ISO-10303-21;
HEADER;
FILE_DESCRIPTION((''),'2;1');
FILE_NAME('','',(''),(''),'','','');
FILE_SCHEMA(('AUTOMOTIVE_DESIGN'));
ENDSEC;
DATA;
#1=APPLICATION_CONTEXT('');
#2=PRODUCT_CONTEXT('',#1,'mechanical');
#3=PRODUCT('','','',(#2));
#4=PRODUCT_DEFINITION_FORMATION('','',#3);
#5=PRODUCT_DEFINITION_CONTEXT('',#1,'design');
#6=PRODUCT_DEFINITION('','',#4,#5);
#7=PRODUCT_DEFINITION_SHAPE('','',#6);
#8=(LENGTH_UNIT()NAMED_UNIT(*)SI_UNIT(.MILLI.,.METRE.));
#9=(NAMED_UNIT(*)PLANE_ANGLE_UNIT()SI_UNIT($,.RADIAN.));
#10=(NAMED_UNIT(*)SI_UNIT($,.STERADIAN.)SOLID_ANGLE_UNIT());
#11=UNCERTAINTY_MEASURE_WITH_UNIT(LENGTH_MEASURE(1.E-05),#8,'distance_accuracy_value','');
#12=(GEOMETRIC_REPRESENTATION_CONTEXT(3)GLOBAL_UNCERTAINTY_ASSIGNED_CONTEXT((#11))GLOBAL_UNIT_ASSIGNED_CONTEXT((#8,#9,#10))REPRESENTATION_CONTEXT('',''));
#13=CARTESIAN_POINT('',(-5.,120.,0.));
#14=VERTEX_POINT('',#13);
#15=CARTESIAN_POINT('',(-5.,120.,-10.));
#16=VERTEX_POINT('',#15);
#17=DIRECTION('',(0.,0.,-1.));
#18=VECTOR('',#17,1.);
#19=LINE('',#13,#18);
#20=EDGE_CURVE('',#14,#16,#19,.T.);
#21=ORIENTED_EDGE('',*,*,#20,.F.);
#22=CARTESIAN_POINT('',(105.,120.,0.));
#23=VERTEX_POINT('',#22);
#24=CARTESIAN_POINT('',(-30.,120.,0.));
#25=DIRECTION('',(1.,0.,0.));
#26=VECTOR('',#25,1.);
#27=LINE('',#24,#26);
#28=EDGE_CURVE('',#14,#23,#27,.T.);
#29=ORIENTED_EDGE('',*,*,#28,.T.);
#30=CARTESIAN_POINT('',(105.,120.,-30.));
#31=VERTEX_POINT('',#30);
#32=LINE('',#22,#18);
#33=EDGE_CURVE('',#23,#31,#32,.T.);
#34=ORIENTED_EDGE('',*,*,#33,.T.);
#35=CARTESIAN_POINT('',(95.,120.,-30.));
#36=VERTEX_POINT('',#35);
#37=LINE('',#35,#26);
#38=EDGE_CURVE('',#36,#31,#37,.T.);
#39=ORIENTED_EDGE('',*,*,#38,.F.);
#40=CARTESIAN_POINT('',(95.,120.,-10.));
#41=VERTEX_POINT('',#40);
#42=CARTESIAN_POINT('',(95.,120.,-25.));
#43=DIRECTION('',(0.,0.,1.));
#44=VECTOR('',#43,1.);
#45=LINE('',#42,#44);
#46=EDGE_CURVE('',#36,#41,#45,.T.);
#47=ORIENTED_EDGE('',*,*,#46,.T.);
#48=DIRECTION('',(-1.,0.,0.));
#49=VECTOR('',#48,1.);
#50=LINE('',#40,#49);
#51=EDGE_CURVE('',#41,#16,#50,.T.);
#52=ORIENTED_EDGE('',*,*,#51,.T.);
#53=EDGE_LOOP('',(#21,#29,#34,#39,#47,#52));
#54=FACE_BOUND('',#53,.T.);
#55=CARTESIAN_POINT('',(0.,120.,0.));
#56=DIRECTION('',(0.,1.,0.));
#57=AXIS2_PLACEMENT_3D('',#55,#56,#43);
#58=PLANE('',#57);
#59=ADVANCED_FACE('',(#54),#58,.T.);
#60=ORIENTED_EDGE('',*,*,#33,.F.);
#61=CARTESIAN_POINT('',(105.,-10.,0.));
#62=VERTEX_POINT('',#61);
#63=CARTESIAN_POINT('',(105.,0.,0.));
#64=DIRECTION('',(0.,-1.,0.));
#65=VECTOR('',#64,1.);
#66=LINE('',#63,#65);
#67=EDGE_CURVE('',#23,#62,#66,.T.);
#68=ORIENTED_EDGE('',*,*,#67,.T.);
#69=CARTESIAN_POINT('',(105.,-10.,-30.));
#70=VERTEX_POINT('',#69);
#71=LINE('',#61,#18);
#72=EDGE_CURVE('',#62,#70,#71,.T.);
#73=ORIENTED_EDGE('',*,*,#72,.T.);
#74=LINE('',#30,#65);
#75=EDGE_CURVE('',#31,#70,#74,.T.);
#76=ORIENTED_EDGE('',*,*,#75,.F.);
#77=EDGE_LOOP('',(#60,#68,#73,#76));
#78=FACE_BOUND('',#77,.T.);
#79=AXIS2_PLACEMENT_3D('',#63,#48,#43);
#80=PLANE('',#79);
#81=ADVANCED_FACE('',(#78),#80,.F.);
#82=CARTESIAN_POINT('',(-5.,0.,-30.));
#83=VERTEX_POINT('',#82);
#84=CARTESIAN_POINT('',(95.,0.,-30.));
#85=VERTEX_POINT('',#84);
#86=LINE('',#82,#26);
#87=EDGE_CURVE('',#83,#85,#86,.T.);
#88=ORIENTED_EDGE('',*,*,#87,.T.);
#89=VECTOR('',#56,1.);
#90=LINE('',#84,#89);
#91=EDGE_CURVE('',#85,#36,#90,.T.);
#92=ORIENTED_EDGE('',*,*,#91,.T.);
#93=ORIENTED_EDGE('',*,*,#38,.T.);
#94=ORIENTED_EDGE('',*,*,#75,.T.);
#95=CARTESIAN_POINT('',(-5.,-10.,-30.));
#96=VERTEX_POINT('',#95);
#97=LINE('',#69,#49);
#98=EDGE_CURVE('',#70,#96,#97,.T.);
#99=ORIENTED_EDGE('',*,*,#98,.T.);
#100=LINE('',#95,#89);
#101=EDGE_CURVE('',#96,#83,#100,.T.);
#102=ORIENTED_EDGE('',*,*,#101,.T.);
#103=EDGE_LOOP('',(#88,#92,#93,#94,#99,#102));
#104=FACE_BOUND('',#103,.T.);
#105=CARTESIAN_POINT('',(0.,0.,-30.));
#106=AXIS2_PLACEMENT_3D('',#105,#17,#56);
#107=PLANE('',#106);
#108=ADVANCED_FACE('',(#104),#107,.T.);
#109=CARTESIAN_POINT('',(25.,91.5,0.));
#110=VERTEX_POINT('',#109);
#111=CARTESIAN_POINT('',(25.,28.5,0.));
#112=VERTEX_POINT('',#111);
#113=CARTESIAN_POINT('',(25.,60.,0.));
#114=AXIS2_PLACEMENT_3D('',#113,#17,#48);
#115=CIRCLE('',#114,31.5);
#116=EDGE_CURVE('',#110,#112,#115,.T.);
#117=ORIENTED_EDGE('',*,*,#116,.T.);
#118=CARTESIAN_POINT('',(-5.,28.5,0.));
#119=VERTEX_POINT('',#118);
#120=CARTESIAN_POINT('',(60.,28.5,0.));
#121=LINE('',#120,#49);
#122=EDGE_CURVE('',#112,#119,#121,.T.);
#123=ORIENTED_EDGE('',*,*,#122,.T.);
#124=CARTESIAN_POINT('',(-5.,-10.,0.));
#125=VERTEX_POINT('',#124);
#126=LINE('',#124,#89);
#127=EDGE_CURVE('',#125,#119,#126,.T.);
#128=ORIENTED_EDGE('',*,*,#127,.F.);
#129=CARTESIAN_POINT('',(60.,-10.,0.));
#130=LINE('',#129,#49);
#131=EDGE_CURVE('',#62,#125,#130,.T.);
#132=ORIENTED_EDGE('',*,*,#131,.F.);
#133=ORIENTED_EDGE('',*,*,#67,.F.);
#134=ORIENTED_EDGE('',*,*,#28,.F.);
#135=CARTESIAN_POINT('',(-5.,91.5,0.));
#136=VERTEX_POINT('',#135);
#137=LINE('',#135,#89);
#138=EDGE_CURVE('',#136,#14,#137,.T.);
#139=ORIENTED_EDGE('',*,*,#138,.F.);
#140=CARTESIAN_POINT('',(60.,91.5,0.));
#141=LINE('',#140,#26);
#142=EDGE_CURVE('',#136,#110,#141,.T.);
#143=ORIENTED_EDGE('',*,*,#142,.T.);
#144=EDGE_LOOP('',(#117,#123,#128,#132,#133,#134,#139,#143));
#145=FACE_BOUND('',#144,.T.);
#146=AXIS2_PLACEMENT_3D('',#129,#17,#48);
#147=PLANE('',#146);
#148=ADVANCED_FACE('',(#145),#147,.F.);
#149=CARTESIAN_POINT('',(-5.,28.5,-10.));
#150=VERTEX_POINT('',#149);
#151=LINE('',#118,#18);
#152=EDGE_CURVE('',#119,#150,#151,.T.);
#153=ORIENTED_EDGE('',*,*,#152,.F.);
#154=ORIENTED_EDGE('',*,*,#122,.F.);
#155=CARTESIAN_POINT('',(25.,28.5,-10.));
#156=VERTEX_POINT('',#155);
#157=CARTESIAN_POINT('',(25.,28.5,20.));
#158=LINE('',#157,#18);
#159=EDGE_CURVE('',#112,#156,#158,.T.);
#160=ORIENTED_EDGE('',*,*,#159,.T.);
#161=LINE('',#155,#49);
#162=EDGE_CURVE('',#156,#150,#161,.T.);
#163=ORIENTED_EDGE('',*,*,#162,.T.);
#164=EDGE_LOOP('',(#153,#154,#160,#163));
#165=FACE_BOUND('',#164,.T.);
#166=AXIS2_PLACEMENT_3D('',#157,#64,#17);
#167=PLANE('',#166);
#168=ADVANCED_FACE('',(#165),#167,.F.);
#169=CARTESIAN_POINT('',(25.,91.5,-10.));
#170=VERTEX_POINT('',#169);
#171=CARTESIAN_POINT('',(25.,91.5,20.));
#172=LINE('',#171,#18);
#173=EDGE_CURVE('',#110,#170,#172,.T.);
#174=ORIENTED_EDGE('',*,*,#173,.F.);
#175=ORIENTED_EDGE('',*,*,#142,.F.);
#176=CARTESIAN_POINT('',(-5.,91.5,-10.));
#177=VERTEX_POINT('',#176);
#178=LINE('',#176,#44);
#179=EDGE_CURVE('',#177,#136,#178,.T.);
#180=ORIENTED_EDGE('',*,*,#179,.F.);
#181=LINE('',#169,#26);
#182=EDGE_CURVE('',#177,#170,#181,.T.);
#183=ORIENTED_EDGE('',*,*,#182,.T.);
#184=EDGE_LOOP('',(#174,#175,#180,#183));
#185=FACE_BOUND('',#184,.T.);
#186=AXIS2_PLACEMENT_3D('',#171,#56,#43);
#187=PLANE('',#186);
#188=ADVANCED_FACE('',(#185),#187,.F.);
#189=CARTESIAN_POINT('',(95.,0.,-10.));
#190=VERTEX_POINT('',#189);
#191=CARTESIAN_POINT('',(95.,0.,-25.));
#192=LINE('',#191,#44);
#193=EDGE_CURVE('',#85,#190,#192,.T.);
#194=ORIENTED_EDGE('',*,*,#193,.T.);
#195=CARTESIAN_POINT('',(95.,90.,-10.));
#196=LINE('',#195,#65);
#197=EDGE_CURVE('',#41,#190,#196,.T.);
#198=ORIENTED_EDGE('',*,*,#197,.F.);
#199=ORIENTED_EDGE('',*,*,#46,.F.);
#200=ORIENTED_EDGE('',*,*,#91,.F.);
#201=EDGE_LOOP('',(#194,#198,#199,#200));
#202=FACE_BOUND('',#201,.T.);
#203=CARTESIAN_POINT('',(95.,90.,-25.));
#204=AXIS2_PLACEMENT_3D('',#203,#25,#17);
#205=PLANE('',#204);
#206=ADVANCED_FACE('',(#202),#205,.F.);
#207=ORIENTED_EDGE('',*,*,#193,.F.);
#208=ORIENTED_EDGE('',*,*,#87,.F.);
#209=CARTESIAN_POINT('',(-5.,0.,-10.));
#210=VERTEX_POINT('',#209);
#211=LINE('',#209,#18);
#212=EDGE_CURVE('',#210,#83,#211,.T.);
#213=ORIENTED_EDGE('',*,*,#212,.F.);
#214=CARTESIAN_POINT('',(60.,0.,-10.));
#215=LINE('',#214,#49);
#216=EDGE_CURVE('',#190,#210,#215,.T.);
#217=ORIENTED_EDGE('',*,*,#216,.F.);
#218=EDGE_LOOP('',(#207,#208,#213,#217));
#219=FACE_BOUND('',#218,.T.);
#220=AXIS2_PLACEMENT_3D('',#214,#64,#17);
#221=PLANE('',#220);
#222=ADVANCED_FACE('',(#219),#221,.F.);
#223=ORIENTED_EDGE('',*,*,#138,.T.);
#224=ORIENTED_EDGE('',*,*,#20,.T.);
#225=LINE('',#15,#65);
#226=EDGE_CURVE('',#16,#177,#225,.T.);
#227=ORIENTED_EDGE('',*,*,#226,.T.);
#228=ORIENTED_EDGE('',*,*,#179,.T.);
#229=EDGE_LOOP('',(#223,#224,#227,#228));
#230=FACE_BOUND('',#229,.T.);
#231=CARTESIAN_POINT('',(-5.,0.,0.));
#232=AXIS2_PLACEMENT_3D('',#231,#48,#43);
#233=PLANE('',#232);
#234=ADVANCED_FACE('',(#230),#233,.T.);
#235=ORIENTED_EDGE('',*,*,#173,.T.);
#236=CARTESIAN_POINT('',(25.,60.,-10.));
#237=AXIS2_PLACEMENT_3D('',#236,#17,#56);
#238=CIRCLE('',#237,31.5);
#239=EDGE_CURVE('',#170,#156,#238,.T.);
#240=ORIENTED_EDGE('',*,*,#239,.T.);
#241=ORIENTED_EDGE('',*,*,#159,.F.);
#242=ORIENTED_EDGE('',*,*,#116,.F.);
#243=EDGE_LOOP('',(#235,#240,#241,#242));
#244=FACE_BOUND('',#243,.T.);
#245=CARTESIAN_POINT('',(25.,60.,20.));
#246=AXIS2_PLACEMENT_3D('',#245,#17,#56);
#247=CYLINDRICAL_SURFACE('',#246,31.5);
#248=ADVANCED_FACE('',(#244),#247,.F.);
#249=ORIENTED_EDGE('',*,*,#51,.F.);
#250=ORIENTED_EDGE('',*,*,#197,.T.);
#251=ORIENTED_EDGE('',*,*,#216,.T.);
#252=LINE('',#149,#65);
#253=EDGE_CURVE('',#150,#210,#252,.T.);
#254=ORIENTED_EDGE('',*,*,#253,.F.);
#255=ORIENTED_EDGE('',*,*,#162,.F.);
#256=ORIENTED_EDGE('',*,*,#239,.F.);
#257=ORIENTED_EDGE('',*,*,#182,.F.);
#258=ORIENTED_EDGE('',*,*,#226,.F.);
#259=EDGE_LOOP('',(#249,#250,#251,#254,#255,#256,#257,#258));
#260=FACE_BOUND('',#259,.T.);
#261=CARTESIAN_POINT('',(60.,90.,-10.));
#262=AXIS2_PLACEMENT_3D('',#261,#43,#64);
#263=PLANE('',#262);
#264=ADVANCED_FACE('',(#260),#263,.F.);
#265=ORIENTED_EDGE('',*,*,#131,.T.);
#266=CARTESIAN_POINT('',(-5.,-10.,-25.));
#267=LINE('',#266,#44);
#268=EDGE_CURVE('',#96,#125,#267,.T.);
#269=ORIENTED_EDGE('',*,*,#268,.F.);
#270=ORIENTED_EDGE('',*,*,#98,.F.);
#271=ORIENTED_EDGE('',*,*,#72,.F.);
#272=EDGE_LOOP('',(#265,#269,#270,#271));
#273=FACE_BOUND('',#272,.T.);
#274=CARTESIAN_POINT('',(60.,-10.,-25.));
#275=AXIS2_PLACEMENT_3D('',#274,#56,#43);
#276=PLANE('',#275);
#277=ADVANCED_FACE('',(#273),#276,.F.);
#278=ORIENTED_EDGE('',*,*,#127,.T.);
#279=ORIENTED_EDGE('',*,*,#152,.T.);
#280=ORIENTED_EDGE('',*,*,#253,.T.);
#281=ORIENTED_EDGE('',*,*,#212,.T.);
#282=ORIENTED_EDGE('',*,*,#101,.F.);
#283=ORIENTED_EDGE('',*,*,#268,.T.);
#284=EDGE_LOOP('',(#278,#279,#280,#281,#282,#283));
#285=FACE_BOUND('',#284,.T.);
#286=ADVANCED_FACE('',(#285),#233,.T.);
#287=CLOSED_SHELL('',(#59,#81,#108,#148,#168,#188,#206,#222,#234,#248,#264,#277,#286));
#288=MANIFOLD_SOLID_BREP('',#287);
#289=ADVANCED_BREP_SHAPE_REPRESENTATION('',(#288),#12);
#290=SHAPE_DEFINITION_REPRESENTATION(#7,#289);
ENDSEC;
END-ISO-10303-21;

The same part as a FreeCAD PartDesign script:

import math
import FreeCAD as App
import Part
import Sketcher

V = App.Vector
Q = App.Units.Quantity


def add_polygon(sketch, points):
    """Adds a closed chain of lines whose ends are joined by coincident constraints."""
    first, n = sketch.GeometryCount, len(points)
    for a, b in zip(points, points[1:] + points[:1]):
        sketch.addGeometry(Part.LineSegment(App.Vector(*a, 0), App.Vector(*b, 0)), False)
    for i in range(n):
        sketch.addConstraint(Sketcher.Constraint("Coincident", first + i, 2, first + (i + 1) % n, 1))

doc = App.newDocument("Part")
body = doc.addObject("PartDesign::Body", "Body")

# Sketch on YZ plane
sketch1 = doc.addObject("Sketcher::SketchObject", "Sketch")
body.addObject(sketch1)
sketch1.AttachmentSupport = (doc.YZ_Plane, [""])
sketch1.MapMode = "FlatFace"
add_polygon(sketch1, [(90, 0), (-10, 0), (-10, -25), (0, -25), (0, -10), (90, -10)])  # lines 0-5
sketch1.addConstraint(Sketcher.Constraint("Horizontal", 0))
sketch1.addConstraint(Sketcher.Constraint("Vertical", 1))
sketch1.addConstraint(Sketcher.Constraint("Horizontal", 2))
sketch1.addConstraint(Sketcher.Constraint("Vertical", 3))
sketch1.addConstraint(Sketcher.Constraint("Horizontal", 4))
sketch1.addConstraint(Sketcher.Constraint("Vertical", 5))
sketch1.addConstraint(Sketcher.Constraint("PointOnObject", 0, 2, -1))
sketch1.addConstraint(Sketcher.Constraint("PointOnObject", 2, 2, -2))
sketch1.addConstraint(Sketcher.Constraint("Equal", 2, 5))
sketch1.addConstraint(Sketcher.Constraint("DistanceX", 0, 2, 0, 1, Q("100 mm")))
sketch1.addConstraint(Sketcher.Constraint("DistanceX", 2, 1, 2, 2, Q("10 mm")))
sketch1.addConstraint(Sketcher.Constraint("DistanceY", 1, 2, 1, 1, Q("25 mm")))
pad1 = doc.addObject("PartDesign::Pad", "Pad")
body.addObject(pad1)
pad1.Profile = sketch1
pad1.Length = 60

# Sketch on YZ plane
sketch2 = doc.addObject("Sketcher::SketchObject", "Sketch001")
body.addObject(sketch2)
sketch2.AttachmentSupport = (doc.YZ_Plane, [""])
sketch2.MapMode = "FlatFace"
sketch2.AttachmentOffset = App.Placement(V(0, 0, 60), App.Rotation())
add_polygon(sketch2, [(90, 0), (0, 0), (0, -10), (90, -10)])  # lines 0-3
sketch2.addConstraint(Sketcher.Constraint("Horizontal", 0))
sketch2.addConstraint(Sketcher.Constraint("Vertical", 1))
sketch2.addConstraint(Sketcher.Constraint("Horizontal", 2))
sketch2.addConstraint(Sketcher.Constraint("Vertical", 3))
sketch2.addConstraint(Sketcher.Constraint("Coincident", 0, 2, -1, 1))
sketch2.addConstraint(Sketcher.Constraint("DistanceX", 0, 2, 0, 1, Q("90 mm")))
sketch2.addConstraint(Sketcher.Constraint("DistanceY", 1, 2, 1, 1, Q("10 mm")))
pad2 = doc.addObject("PartDesign::Pad", "Pad001")
body.addObject(pad2)
pad2.Profile = sketch2
pad2.Length = 45

# Sketch on YZ plane
sketch3 = doc.addObject("Sketcher::SketchObject", "Sketch002")
body.addObject(sketch3)
sketch3.AttachmentSupport = (doc.YZ_Plane, [""])
sketch3.MapMode = "FlatFace"
sketch3.AttachmentOffset = App.Placement(V(0, 0, 60), App.Rotation())
add_polygon(sketch3, [(0, 0), (-10, 0), (-10, -25), (0, -25)])  # lines 0-3
sketch3.addConstraint(Sketcher.Constraint("Horizontal", 0))
sketch3.addConstraint(Sketcher.Constraint("Vertical", 1))
sketch3.addConstraint(Sketcher.Constraint("Horizontal", 2))
sketch3.addConstraint(Sketcher.Constraint("Vertical", 3))
sketch3.addConstraint(Sketcher.Constraint("Coincident", 3, 2, -1, 1))
sketch3.addConstraint(Sketcher.Constraint("DistanceX", 0, 2, 0, 1, Q("10 mm")))
sketch3.addConstraint(Sketcher.Constraint("DistanceY", 1, 2, 1, 1, Q("25 mm")))
pad3 = doc.addObject("PartDesign::Pad", "Pad002")
body.addObject(pad3)
pad3.Profile = sketch3
pad3.Length = 45

# Sketch on XZ plane
sketch4 = doc.addObject("Sketcher::SketchObject", "Sketch003")
body.addObject(sketch4)
sketch4.AttachmentSupport = (doc.XZ_Plane, [""])
sketch4.MapMode = "FlatFace"
add_polygon(sketch4, [(95, -25), (95, -10), (105, -10), (105, -25)])  # lines 0-3
sketch4.addConstraint(Sketcher.Constraint("Vertical", 0))
sketch4.addConstraint(Sketcher.Constraint("Horizontal", 1))
sketch4.addConstraint(Sketcher.Constraint("Vertical", 2))
sketch4.addConstraint(Sketcher.Constraint("Horizontal", 3))
sketch4.addConstraint(Sketcher.Constraint("DistanceX", 1, 1, 1, 2, Q("10 mm")))
sketch4.addConstraint(Sketcher.Constraint("DistanceY", 0, 1, 0, 2, Q("15 mm")))
sketch4.addConstraint(Sketcher.Constraint("DistanceX", -1, 1, 0, 2, Q("95 mm")))
sketch4.addConstraint(Sketcher.Constraint("DistanceY", 0, 2, -1, 1, Q("10 mm")))
pad4 = doc.addObject("PartDesign::Pad", "Pad003")
body.addObject(pad4)
pad4.Profile = sketch4
pad4.Length = 90
pad4.Reversed = True

# Sketch on YZ plane
sketch5 = doc.addObject("Sketcher::SketchObject", "Sketch004")
body.addObject(sketch5)
sketch5.AttachmentSupport = (doc.YZ_Plane, [""])
sketch5.MapMode = "FlatFace"
add_polygon(sketch5, [(-10, 0), (90, 0), (90, -10), (0, -10), (0, -25), (-10, -25)])  # lines 0-5
sketch5.addConstraint(Sketcher.Constraint("Horizontal", 0))
sketch5.addConstraint(Sketcher.Constraint("Vertical", 1))
sketch5.addConstraint(Sketcher.Constraint("Horizontal", 2))
sketch5.addConstraint(Sketcher.Constraint("Vertical", 3))
sketch5.addConstraint(Sketcher.Constraint("Horizontal", 4))
sketch5.addConstraint(Sketcher.Constraint("Vertical", 5))
sketch5.addConstraint(Sketcher.Constraint("PointOnObject", 0, 2, -1))
sketch5.addConstraint(Sketcher.Constraint("PointOnObject", 2, 2, -2))
sketch5.addConstraint(Sketcher.Constraint("Equal", 4, 1))
sketch5.addConstraint(Sketcher.Constraint("DistanceX", 0, 1, 0, 2, Q("100 mm")))
sketch5.addConstraint(Sketcher.Constraint("DistanceX", 2, 2, 2, 1, Q("90 mm")))
sketch5.addConstraint(Sketcher.Constraint("DistanceY", 3, 2, 3, 1, Q("15 mm")))
pad5 = doc.addObject("PartDesign::Pad", "Pad004")
body.addObject(pad5)
pad5.Profile = sketch5
pad5.Length = 30
pad5.Reversed = True

# Sketch on XZ plane
sketch6 = doc.addObject("Sketcher::SketchObject", "Sketch005")
body.addObject(sketch6)
sketch6.AttachmentSupport = (doc.XZ_Plane, [""])
sketch6.MapMode = "FlatFace"
sketch6.AttachmentOffset = App.Placement(V(0, 0, -90), App.Rotation())
add_polygon(sketch6, [(-30, -10), (-30, 0), (105, 0), (105, -25), (95, -25), (95, -10)])  # lines 0-5
sketch6.addConstraint(Sketcher.Constraint("Vertical", 0))
sketch6.addConstraint(Sketcher.Constraint("Horizontal", 1))
sketch6.addConstraint(Sketcher.Constraint("Vertical", 2))
sketch6.addConstraint(Sketcher.Constraint("Horizontal", 3))
sketch6.addConstraint(Sketcher.Constraint("Vertical", 4))
sketch6.addConstraint(Sketcher.Constraint("Horizontal", 5))
sketch6.addConstraint(Sketcher.Constraint("PointOnObject", 0, 2, -1))
sketch6.addConstraint(Sketcher.Constraint("Equal", 3, 0))
sketch6.addConstraint(Sketcher.Constraint("DistanceX", 1, 1, 1, 2, Q("135 mm")))
sketch6.addConstraint(Sketcher.Constraint("DistanceX", 3, 2, 3, 1, Q("10 mm")))
sketch6.addConstraint(Sketcher.Constraint("DistanceY", 2, 2, 2, 1, Q("25 mm")))
sketch6.addConstraint(Sketcher.Constraint("DistanceX", 0, 2, -1, 1, Q("30 mm")))
pad6 = doc.addObject("PartDesign::Pad", "Pad005")
body.addObject(pad6)
pad6.Profile = sketch6
pad6.Length = 30
pad6.Reversed = True

# Sketch on XY plane
sketch7 = doc.addObject("Sketcher::SketchObject", "Sketch006")
body.addObject(sketch7)
sketch7.AttachmentSupport = (doc.XY_Plane, [""])
sketch7.MapMode = "FlatFace"
sketch7.AttachmentOffset = App.Placement(V(0, 0, -10), App.Rotation())
sketch7.addGeometry(Part.LineSegment(V(-30, 92, 0), V(25, 92, 0)), False)
sketch7.addGeometry(Part.ArcOfCircle(Part.Circle(V(25, 60, 0), V(0, 0, 1), 32), math.radians(-90), math.radians(90)), False)
sketch7.addGeometry(Part.LineSegment(V(25, 28, 0), V(-30, 28, 0)), False)
sketch7.addGeometry(Part.LineSegment(V(-30, 28, 0), V(-30, 92, 0)), False)
sketch7.addConstraint(Sketcher.Constraint("Tangent", 0, 2, 1, 2))
sketch7.addConstraint(Sketcher.Constraint("Tangent", 1, 1, 2, 1))
sketch7.addConstraint(Sketcher.Constraint("Coincident", 2, 2, 3, 1))
sketch7.addConstraint(Sketcher.Constraint("Coincident", 3, 2, 0, 1))
sketch7.addConstraint(Sketcher.Constraint("Horizontal", 0))
sketch7.addConstraint(Sketcher.Constraint("Horizontal", 2))
sketch7.addConstraint(Sketcher.Constraint("Vertical", 3))
sketch7.addConstraint(Sketcher.Constraint("Radius", 1, Q("31.5 mm")))
sketch7.addConstraint(Sketcher.Constraint("DistanceX", 0, 1, 0, 2, Q("55 mm")))
sketch7.addConstraint(Sketcher.Constraint("DistanceX", -1, 1, 1, 3, Q("25 mm")))
sketch7.addConstraint(Sketcher.Constraint("DistanceY", -1, 1, 1, 3, Q("60 mm")))
pocket1 = doc.addObject("PartDesign::Pocket", "Pocket")
body.addObject(pocket1)
pocket1.Profile = sketch7
pocket1.Length = 30
pocket1.Reversed = True

# Sketch on YZ plane
sketch8 = doc.addObject("Sketcher::SketchObject", "Sketch007")
body.addObject(sketch8)
sketch8.AttachmentSupport = (doc.YZ_Plane, [""])
sketch8.MapMode = "FlatFace"
sketch8.AttachmentOffset = App.Placement(V(0, 0, -30), App.Rotation())
add_polygon(sketch8, [(28, 0), (28, -10), (0, -10), (0, -25), (-10, -25), (-10, 0)])  # lines 0-5
sketch8.addConstraint(Sketcher.Constraint("Vertical", 0))
sketch8.addConstraint(Sketcher.Constraint("Horizontal", 1))
sketch8.addConstraint(Sketcher.Constraint("Vertical", 2))
sketch8.addConstraint(Sketcher.Constraint("Horizontal", 3))
sketch8.addConstraint(Sketcher.Constraint("Vertical", 4))
sketch8.addConstraint(Sketcher.Constraint("Horizontal", 5))
sketch8.addConstraint(Sketcher.Constraint("PointOnObject", 1, 2, -2))
sketch8.addConstraint(Sketcher.Constraint("PointOnObject", 4, 2, -1))
sketch8.addConstraint(Sketcher.Constraint("Equal", 3, 0))
sketch8.addConstraint(Sketcher.Constraint("DistanceX", 3, 2, 3, 1, Q("10 mm")))
sketch8.addConstraint(Sketcher.Constraint("DistanceY", 2, 2, 2, 1, Q("15 mm")))
sketch8.addConstraint(Sketcher.Constraint("DistanceX", 1, 2, 1, 1, Q("28.5 mm")))
pocket2 = doc.addObject("PartDesign::Pocket", "Pocket001")
body.addObject(pocket2)
pocket2.Profile = sketch8
pocket2.Length = 25
pocket2.Reversed = True

# Sketch on YZ plane
sketch9 = doc.addObject("Sketcher::SketchObject", "Sketch008")
body.addObject(sketch9)
sketch9.AttachmentSupport = (doc.YZ_Plane, [""])
sketch9.MapMode = "FlatFace"
sketch9.AttachmentOffset = App.Placement(V(0, 0, -30), App.Rotation())
add_polygon(sketch9, [(120, -10), (92, -10), (92, 0), (120, 0)])  # lines 0-3
sketch9.addConstraint(Sketcher.Constraint("Horizontal", 0))
sketch9.addConstraint(Sketcher.Constraint("Vertical", 1))
sketch9.addConstraint(Sketcher.Constraint("Horizontal", 2))
sketch9.addConstraint(Sketcher.Constraint("Vertical", 3))
sketch9.addConstraint(Sketcher.Constraint("PointOnObject", 1, 2, -1))
sketch9.addConstraint(Sketcher.Constraint("DistanceY", 1, 1, 1, 2, Q("10 mm")))
sketch9.addConstraint(Sketcher.Constraint("DistanceX", 0, 2, 0, 1, Q("28.5 mm")))
sketch9.addConstraint(Sketcher.Constraint("DistanceX", -1, 1, 2, 2, Q("120 mm")))
pocket3 = doc.addObject("PartDesign::Pocket", "Pocket002")
body.addObject(pocket3)
pocket3.Profile = sketch9
pocket3.Length = 25
pocket3.Reversed = True

# Sketch on XY plane
sketch10 = doc.addObject("Sketcher::SketchObject", "Sketch009")
body.addObject(sketch10)
sketch10.AttachmentSupport = (doc.XY_Plane, [""])
sketch10.MapMode = "FlatFace"
sketch10.AttachmentOffset = App.Placement(V(0, 0, -25), App.Rotation())
add_polygon(sketch10, [(-5, -10), (-5, 0), (95, 0), (95, 120), (105, 120), (105, -10)])  # lines 0-5
sketch10.addConstraint(Sketcher.Constraint("Vertical", 0))
sketch10.addConstraint(Sketcher.Constraint("Horizontal", 1))
sketch10.addConstraint(Sketcher.Constraint("Vertical", 2))
sketch10.addConstraint(Sketcher.Constraint("Horizontal", 3))
sketch10.addConstraint(Sketcher.Constraint("Vertical", 4))
sketch10.addConstraint(Sketcher.Constraint("Horizontal", 5))
sketch10.addConstraint(Sketcher.Constraint("PointOnObject", 0, 2, -1))
sketch10.addConstraint(Sketcher.Constraint("Equal", 3, 0))
sketch10.addConstraint(Sketcher.Constraint("DistanceX", 1, 1, 1, 2, Q("100 mm")))
sketch10.addConstraint(Sketcher.Constraint("DistanceX", 3, 1, 3, 2, Q("10 mm")))
sketch10.addConstraint(Sketcher.Constraint("DistanceY", 2, 1, 2, 2, Q("120 mm")))
sketch10.addConstraint(Sketcher.Constraint("DistanceX", 0, 2, -1, 1, Q("5 mm")))
pad7 = doc.addObject("PartDesign::Pad", "Pad006")
body.addObject(pad7)
pad7.Profile = sketch10
pad7.Length = 5
pad7.Reversed = True

doc.recompute()
